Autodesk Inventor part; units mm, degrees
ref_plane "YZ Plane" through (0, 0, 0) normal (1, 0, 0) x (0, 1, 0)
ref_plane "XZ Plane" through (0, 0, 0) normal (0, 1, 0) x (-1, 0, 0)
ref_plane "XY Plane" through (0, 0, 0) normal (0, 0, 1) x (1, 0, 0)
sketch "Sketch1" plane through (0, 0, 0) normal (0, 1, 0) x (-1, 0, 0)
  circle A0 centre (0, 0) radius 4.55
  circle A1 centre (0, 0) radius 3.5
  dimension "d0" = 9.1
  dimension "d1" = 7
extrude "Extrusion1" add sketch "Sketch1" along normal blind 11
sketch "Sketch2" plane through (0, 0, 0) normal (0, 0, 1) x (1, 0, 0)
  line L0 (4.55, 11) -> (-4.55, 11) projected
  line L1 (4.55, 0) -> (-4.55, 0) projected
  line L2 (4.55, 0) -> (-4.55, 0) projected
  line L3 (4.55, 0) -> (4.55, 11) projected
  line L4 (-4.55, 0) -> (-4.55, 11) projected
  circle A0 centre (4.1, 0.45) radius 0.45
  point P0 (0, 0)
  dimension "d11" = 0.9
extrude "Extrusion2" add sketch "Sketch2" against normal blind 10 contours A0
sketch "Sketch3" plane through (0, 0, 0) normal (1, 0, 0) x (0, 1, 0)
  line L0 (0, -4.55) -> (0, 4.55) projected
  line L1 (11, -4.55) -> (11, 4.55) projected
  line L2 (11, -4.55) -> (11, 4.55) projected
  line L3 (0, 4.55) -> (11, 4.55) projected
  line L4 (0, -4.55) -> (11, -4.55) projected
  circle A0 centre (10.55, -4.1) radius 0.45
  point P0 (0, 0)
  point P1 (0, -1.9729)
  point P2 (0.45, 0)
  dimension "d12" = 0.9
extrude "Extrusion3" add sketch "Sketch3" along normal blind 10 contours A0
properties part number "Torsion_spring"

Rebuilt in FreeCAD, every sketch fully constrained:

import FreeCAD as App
import Part
import Sketcher

doc = App.newDocument("Part")
body = doc.addObject("PartDesign::Body", "Body")

# Sketch on XZ plane
sketch1 = doc.addObject("Sketcher::SketchObject", "Sketch")
body.addObject(sketch1)
sketch1.AttachmentSupport = (doc.XZ_Plane, [""])
sketch1.MapMode = "FlatFace"
sketch1.addGeometry([
    Part.Circle(App.Vector(0, 0, 0), App.Vector(0, 0, 1), 4.55),
    Part.Circle(App.Vector(0, 0, 0), App.Vector(0, 0, 1), 3.5),
], False)
sketch1.addConstraint([
    Sketcher.Constraint("Coincident", 0, 3, -1, 1),
    Sketcher.Constraint("Coincident", 1, 3, -1, 1),
    Sketcher.Constraint("Diameter", 1, 7.0),
    Sketcher.Constraint("Diameter", 0, 9.1),
])
pad1 = doc.addObject("PartDesign::Pad", "Pad")
body.addObject(pad1)
pad1.Profile = sketch1
pad1.Length = 11
pad1.Reversed = True

# Sketch on XY plane
sketch2 = doc.addObject("Sketcher::SketchObject", "Sketch001")
body.addObject(sketch2)
sketch2.AttachmentSupport = (doc.XY_Plane, [""])
sketch2.MapMode = "FlatFace"
sketch2.addGeometry(Part.Circle(App.Vector(4.1, 0.45, 0), App.Vector(0, 0, 1), 0.45), False)
sketch2.addConstraint([
    Sketcher.Constraint("Diameter", 0, 0.9),
    Sketcher.Constraint("DistanceX", -1, 1, 0, 3, 4.1),
    Sketcher.Constraint("DistanceY", -1, 1, 0, 3, 0.45),
])
pad2 = doc.addObject("PartDesign::Pad", "Pad001")
body.addObject(pad2)
pad2.Profile = sketch2
pad2.Length = 10
pad2.Reversed = True

# Sketch on YZ plane
sketch3 = doc.addObject("Sketcher::SketchObject", "Sketch002")
body.addObject(sketch3)
sketch3.AttachmentSupport = (doc.YZ_Plane, [""])
sketch3.MapMode = "FlatFace"
sketch3.addGeometry(Part.Circle(App.Vector(10.55, -4.1, 0), App.Vector(0, 0, 1), 0.45), False)
sketch3.addConstraint([
    Sketcher.Constraint("Diameter", 0, 0.9),
    Sketcher.Constraint("DistanceY", 0, 3, -1, 1, 4.1),
    Sketcher.Constraint("DistanceX", -1, 1, 0, 3, 10.55),
])
pad3 = doc.addObject("PartDesign::Pad", "Pad002")
body.addObject(pad3)
pad3.Profile = sketch3
pad3.Length = 10

doc.recompute()
